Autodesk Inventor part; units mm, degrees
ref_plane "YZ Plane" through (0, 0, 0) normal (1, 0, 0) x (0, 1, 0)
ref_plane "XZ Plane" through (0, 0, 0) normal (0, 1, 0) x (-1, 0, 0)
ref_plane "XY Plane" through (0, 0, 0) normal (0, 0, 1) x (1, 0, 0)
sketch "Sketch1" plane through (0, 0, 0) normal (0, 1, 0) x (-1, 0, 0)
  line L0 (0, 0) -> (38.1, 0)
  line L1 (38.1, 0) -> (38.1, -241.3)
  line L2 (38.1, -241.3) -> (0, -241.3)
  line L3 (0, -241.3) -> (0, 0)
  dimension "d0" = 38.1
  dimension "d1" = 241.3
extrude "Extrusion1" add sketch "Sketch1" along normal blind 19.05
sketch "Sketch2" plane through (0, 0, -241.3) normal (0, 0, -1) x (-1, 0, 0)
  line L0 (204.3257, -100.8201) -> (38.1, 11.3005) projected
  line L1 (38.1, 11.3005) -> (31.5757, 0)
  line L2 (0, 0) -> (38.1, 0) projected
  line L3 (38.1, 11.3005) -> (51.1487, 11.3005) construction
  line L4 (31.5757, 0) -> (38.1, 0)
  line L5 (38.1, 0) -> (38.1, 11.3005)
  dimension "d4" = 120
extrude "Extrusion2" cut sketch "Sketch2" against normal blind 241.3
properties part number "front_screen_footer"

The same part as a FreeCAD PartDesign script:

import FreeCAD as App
import Part
import Sketcher
from FreeCAD import Vector
Q = App.Units.Quantity


def add_polygon(sketch, points):
    """Adds a closed chain of lines whose ends are joined by coincident constraints."""
    first, n = sketch.GeometryCount, len(points)
    for a, b in zip(points, points[1:] + points[:1]):
        sketch.addGeometry(Part.LineSegment(App.Vector(*a, 0), App.Vector(*b, 0)), False)
    for i in range(n):
        sketch.addConstraint(Sketcher.Constraint("Coincident", first + i, 2, first + (i + 1) % n, 1))

doc = App.newDocument("Part")
body = doc.addObject("PartDesign::Body", "Body")

sketch1 = body.newObject("Sketcher::SketchObject", "Sketch")
sketch1.AttachmentSupport = (doc.getObject("XZ_Plane"), [""])
sketch1.MapMode = "FlatFace"
add_polygon(sketch1, [(-38, 0), (0, 0), (0, -241), (-38, -241)])
sketch1.addConstraint(Sketcher.Constraint("Horizontal", 0))
sketch1.addConstraint(Sketcher.Constraint("Vertical", 1))
sketch1.addConstraint(Sketcher.Constraint("Horizontal", 2))
sketch1.addConstraint(Sketcher.Constraint("Vertical", 3))
sketch1.addConstraint(Sketcher.Constraint("Coincident", 0, 2, -1, 1))
sketch1.addConstraint(Sketcher.Constraint("DistanceX", 0, 1, 0, 2, Q("1.5 in")))
sketch1.addConstraint(Sketcher.Constraint("DistanceY", 1, 2, 1, 1, Q("9.5 in")))
pad1 = body.newObject("PartDesign::Pad", "Pad")
pad1.Profile = sketch1
pad1.Length = Q("0.75 in")
pad1.Reversed = True

sketch2 = body.newObject("Sketcher::SketchObject", "Sketch001")
sketch2.AttachmentSupport = (doc.getObject("XY_Plane"), [""])
sketch2.MapMode = "FlatFace"
sketch2.AttachmentOffset = App.Placement(Vector(0, 0, -9.5 * 25.4), App.Rotation())
add_polygon(sketch2, [(-38, 0), (-38, 11), (-32, 0)])
sketch2.addConstraint(Sketcher.Constraint("Vertical", 0))
sketch2.addConstraint(Sketcher.Constraint("Horizontal", 2))
sketch2.addConstraint(Sketcher.Constraint("PointOnObject", 1, 2, -1))
sketch2.addConstraint(Sketcher.Constraint("Angle", 1, Q("-60.0002 deg")))
sketch2.addConstraint(Sketcher.Constraint("DistanceX", 0, 2, -1, 1, Q("1.5 in")))
sketch2.addConstraint(Sketcher.Constraint("DistanceY", 0, 1, 0, 2, Q("0.4449 in")))
pocket1 = body.newObject("PartDesign::Pocket", "Pocket")
pocket1.Profile = sketch2
pocket1.Length = Q("9.5 in")
pocket1.Reversed = True

doc.recompute()
